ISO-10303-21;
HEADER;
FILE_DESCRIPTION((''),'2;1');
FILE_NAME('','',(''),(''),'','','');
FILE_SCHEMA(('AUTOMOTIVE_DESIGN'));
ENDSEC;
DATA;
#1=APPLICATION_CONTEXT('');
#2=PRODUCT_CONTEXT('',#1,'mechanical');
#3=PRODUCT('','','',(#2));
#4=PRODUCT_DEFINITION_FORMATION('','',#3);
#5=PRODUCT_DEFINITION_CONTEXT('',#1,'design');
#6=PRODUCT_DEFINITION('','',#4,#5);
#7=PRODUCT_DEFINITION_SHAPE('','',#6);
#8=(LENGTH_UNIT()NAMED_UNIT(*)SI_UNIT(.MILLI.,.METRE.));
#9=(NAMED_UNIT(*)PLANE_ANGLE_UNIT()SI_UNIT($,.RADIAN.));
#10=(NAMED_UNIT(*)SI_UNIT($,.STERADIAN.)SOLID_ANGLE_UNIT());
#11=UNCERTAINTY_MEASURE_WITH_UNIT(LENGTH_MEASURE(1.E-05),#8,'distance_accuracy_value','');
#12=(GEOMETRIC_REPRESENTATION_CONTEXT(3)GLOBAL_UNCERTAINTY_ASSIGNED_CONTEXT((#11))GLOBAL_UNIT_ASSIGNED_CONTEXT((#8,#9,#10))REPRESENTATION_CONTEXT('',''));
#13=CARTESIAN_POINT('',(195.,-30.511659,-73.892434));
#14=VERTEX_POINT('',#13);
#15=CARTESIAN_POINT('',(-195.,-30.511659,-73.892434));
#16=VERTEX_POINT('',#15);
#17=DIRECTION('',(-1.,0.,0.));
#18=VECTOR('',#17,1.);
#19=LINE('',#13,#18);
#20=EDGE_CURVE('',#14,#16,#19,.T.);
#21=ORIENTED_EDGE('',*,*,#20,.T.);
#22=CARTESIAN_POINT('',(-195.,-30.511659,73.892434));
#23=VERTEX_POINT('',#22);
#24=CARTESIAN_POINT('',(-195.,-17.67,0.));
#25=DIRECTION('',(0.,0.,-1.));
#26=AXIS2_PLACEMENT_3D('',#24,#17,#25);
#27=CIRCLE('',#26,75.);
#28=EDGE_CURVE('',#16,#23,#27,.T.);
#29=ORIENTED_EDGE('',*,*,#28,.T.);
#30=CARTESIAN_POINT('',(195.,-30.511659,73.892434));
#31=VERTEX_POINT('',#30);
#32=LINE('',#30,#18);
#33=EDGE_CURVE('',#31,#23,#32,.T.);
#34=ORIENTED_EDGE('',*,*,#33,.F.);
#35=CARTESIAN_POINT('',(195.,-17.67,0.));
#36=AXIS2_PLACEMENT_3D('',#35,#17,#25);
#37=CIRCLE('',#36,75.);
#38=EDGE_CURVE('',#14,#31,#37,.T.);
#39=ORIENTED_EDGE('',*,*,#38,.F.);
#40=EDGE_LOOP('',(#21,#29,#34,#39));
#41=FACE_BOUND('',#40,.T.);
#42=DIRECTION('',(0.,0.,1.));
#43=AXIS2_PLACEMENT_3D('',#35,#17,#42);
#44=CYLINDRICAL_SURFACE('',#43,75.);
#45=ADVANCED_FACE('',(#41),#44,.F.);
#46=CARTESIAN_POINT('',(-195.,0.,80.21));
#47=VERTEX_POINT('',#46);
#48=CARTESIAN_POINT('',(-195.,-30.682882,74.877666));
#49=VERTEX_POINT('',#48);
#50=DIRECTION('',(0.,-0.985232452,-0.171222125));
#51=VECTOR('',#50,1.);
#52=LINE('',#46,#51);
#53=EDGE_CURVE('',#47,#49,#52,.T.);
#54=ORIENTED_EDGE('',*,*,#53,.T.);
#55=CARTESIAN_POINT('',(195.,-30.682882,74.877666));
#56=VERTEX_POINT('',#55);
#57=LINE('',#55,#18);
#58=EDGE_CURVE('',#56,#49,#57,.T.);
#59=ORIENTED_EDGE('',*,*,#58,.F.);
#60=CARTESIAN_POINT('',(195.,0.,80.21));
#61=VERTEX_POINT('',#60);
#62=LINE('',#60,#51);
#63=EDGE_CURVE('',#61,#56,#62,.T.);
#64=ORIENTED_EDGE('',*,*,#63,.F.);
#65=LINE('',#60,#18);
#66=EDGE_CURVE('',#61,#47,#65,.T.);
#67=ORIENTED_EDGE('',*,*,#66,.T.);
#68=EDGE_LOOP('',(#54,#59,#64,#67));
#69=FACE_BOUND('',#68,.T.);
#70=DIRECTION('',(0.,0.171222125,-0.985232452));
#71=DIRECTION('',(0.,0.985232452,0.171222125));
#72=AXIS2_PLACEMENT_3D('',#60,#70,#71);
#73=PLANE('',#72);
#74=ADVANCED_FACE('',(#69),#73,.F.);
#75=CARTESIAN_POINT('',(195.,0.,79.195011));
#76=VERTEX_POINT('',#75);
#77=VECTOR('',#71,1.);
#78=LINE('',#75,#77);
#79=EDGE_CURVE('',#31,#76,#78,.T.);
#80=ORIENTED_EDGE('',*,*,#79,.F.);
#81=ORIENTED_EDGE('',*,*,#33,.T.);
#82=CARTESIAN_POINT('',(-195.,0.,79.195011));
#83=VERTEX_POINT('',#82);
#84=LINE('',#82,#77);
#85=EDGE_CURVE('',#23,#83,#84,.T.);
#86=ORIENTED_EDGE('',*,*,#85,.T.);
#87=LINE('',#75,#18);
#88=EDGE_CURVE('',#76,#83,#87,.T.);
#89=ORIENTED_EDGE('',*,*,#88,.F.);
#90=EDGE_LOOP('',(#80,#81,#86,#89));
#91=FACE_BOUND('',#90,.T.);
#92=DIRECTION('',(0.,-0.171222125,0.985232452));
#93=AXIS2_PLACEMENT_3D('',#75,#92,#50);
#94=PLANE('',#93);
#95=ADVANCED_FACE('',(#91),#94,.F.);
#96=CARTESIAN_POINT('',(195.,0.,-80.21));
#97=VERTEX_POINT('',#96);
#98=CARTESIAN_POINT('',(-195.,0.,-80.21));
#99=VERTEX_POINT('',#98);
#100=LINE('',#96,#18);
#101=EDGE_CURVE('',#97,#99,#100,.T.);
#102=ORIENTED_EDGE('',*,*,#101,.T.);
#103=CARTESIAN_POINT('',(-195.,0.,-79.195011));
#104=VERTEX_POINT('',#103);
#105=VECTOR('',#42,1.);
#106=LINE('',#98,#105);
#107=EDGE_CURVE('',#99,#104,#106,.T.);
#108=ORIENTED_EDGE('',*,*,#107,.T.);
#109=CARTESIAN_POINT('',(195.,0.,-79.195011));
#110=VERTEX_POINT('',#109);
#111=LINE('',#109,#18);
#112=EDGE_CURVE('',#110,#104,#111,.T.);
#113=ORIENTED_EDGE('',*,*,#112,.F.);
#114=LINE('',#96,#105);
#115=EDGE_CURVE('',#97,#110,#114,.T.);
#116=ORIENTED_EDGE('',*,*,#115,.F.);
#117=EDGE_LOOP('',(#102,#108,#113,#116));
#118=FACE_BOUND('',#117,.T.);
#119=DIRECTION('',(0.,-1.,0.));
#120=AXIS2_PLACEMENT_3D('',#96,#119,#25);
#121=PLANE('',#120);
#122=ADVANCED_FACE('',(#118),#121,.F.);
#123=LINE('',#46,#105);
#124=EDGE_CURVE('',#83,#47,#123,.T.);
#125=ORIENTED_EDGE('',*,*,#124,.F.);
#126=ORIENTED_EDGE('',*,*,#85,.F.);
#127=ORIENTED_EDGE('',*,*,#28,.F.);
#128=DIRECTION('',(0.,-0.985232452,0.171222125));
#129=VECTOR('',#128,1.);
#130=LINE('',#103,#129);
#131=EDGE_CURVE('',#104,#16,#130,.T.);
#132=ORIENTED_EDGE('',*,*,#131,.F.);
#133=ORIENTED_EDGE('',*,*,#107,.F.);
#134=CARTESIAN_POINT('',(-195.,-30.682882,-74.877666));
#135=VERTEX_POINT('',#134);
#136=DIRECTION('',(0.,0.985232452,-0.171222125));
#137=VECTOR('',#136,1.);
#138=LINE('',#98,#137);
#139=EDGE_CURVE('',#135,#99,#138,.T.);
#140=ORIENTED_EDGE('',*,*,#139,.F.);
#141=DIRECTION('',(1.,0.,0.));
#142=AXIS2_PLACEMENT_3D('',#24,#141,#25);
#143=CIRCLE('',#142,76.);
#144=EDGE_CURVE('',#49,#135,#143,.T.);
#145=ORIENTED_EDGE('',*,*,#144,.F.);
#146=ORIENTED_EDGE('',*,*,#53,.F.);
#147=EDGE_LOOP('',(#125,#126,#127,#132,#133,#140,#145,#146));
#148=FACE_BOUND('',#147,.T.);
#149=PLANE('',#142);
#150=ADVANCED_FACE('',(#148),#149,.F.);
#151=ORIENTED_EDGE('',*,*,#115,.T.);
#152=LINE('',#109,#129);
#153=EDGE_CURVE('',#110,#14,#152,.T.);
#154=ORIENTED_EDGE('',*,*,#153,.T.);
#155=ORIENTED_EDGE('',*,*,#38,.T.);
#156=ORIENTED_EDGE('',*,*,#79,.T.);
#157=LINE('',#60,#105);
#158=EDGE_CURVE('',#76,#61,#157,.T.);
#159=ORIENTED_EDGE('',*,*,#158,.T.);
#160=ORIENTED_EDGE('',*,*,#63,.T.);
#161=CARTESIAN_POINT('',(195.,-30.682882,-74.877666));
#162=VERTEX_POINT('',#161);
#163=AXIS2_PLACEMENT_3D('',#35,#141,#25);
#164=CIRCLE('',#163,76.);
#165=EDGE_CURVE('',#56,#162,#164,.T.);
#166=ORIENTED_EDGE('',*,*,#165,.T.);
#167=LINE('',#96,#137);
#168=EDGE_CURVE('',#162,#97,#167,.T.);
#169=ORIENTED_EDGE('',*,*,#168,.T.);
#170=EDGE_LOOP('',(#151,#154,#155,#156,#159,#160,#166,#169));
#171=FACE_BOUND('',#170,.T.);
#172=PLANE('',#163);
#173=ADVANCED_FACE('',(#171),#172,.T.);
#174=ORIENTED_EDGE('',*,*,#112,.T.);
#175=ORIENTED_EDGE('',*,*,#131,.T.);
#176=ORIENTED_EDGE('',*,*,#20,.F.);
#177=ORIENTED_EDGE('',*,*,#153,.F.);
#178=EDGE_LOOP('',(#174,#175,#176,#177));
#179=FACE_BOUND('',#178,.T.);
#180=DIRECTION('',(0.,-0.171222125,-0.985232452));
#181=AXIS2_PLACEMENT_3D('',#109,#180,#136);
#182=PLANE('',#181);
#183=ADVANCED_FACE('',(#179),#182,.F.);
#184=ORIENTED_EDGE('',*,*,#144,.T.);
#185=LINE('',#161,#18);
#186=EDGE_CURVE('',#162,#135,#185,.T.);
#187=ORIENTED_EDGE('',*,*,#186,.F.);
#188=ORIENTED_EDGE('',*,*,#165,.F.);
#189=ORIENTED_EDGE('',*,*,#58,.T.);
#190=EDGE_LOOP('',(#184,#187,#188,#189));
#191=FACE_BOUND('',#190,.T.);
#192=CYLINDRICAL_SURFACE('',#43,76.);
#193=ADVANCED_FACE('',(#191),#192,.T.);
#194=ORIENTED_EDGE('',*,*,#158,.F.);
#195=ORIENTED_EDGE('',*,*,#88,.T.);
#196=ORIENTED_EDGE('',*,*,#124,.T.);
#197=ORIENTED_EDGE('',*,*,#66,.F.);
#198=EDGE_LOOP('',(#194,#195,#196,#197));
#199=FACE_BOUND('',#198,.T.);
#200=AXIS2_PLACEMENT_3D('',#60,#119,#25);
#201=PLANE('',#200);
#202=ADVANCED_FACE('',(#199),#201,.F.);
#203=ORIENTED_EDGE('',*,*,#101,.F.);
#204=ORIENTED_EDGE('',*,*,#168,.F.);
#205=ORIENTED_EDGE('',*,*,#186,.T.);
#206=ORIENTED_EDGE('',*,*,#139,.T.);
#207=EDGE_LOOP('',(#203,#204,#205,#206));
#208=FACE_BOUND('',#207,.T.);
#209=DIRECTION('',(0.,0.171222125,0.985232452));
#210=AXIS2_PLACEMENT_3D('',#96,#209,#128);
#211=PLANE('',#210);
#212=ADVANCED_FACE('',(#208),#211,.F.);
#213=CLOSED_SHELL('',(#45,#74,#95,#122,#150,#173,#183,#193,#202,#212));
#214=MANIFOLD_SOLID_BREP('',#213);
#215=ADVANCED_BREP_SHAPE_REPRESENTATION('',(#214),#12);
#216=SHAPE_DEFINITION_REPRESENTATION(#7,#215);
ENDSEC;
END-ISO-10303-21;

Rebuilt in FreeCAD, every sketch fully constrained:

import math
import FreeCAD as App
import Part
import Sketcher

doc = App.newDocument("Part")
body = doc.addObject("PartDesign::Body", "Body")

# Sketch on YZ plane
sketch1 = body.newObject("Sketcher::SketchObject", "Sketch")
sketch1.AttachmentSupport = (doc.getObject("YZ_Plane"), [""])
sketch1.MapMode = "FlatFace"
sketch1.addGeometry(Part.LineSegment(App.Vector(0, 80.2, 0), App.Vector(-30.7, 74.9, 0)), False)
sketch1.addGeometry(Part.ArcOfCircle(Part.Circle(App.Vector(-17.7, 0, 0), App.Vector(0, 0, 1), 76), math.radians(100), math.radians(260)), False)
sketch1.addGeometry(Part.LineSegment(App.Vector(-30.7, -74.9, 0), App.Vector(0, -80.2, 0)), False)
sketch1.addGeometry(Part.LineSegment(App.Vector(0, -80.2, 0), App.Vector(0, -79.2, 0)), False)
sketch1.addGeometry(Part.LineSegment(App.Vector(0, -79.2, 0), App.Vector(-30.5, -73.9, 0)), False)
sketch1.addGeometry(Part.ArcOfCircle(Part.Circle(App.Vector(-17.7, 0, 0), App.Vector(0, 0, 1), 75), math.radians(100), math.radians(260)), False)
sketch1.addGeometry(Part.LineSegment(App.Vector(-30.5, 73.9, 0), App.Vector(0, 79.2, 0)), False)
sketch1.addGeometry(Part.LineSegment(App.Vector(0, 79.2, 0), App.Vector(0, 80.2, 0)), False)
sketch1.addConstraint(Sketcher.Constraint("Tangent", 0, 2, 1, 1))
sketch1.addConstraint(Sketcher.Constraint("Tangent", 1, 2, 2, 1))
sketch1.addConstraint(Sketcher.Constraint("Coincident", 2, 2, 3, 1))
sketch1.addConstraint(Sketcher.Constraint("Coincident", 3, 2, 4, 1))
sketch1.addConstraint(Sketcher.Constraint("Tangent", 4, 2, 5, 2))
sketch1.addConstraint(Sketcher.Constraint("Tangent", 5, 1, 6, 1))
sketch1.addConstraint(Sketcher.Constraint("Coincident", 6, 2, 7, 1))
sketch1.addConstraint(Sketcher.Constraint("Coincident", 7, 2, 0, 1))
sketch1.addConstraint(Sketcher.Constraint("Vertical", 3))
sketch1.addConstraint(Sketcher.Constraint("Vertical", 7))
sketch1.addConstraint(Sketcher.Constraint("Coincident", 5, 3, 1, 3))
sketch1.addConstraint(Sketcher.Constraint("Symmetric", 3, 2, 6, 2, -1, 1))
sketch1.addConstraint(Sketcher.Constraint("Symmetric", 0, 2, 1, 2, -1))
sketch1.addConstraint(Sketcher.Constraint("PointOnObject", 2, 2, -2))
sketch1.addConstraint(Sketcher.Constraint("Parallel", 2, 4))
sketch1.addConstraint(Sketcher.Constraint("Radius", 1, 76.0))
sketch1.addConstraint(Sketcher.Constraint("Radius", 5, 75.0))
sketch1.addConstraint(Sketcher.Constraint("DistanceX", 1, 3, -1, 1, 17.67))
sketch1.addConstraint(Sketcher.Constraint("DistanceY", 2, 2, -1, 1, 80.21))
pad1 = body.newObject("PartDesign::Pad", "Pad")
pad1.Profile = sketch1
pad1.Length = 390
pad1.Midplane = True

doc.recompute()
